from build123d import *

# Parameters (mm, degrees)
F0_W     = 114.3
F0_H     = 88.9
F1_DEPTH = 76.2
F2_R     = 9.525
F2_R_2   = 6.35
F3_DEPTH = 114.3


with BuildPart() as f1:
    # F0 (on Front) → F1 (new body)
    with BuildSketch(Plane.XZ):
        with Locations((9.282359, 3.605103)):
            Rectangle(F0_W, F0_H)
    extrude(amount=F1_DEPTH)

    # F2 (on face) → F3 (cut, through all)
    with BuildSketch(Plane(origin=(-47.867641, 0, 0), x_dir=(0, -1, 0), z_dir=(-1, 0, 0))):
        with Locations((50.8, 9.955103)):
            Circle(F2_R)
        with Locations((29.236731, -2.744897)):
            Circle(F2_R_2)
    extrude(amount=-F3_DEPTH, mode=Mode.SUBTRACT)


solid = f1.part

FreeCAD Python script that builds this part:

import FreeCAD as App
import Part
import Sketcher
from FreeCAD import Vector
Q = App.Units.Quantity

doc = App.newDocument("Part")
body = doc.addObject("PartDesign::Body", "Body")

# Sketch on XZ plane
sketch1 = body.newObject("Sketcher::SketchObject", "Sketch")
sketch1.AttachmentSupport = (doc.getObject("XZ_Plane"), [""])
sketch1.MapMode = "FlatFace"
sketch1.addGeometry([
    Part.LineSegment(Vector(-48, 48, 0), Vector(-48, -41, 0)),
    Part.LineSegment(Vector(-48, -41, 0), Vector(66, -41, 0)),
    Part.LineSegment(Vector(66, -41, 0), Vector(66, 48, 0)),
    Part.LineSegment(Vector(66, 48, 0), Vector(-48, 48, 0)),
], False)
sketch1.addConstraint([
    Sketcher.Constraint("Coincident", 0, 2, 1, 1),
    Sketcher.Constraint("Coincident", 1, 2, 2, 1),
    Sketcher.Constraint("Coincident", 2, 2, 3, 1),
    Sketcher.Constraint("Coincident", 3, 2, 0, 1),
    Sketcher.Constraint("Vertical", 0),
    Sketcher.Constraint("Horizontal", 1),
    Sketcher.Constraint("Vertical", 2),
    Sketcher.Constraint("Horizontal", 3),
    Sketcher.Constraint("DistanceX", 1, 1, 1, 2, Q("4.5 in")),
    Sketcher.Constraint("DistanceY", 0, 2, 0, 1, Q("3.5 in")),
    Sketcher.Constraint("DistanceX", 0, 2, -1, 1, 47.867641),
    Sketcher.Constraint("DistanceY", 0, 2, -1, 1, 40.844897),
])
pad1 = body.newObject("PartDesign::Pad", "Pad")
pad1.Profile = sketch1
pad1.Length = Q("3 in")

# Sketch on YZ plane
sketch2 = body.newObject("Sketcher::SketchObject", "Sketch001")
sketch2.AttachmentSupport = (doc.getObject("YZ_Plane"), [""])
sketch2.MapMode = "FlatFace"
sketch2.AttachmentOffset = App.Placement(Vector(0, 0, -47.867641), App.Rotation())
sketch2.addGeometry([
    Part.Circle(Vector(-51, 10, 0), Vector(0, 0, 1), 10),
    Part.Circle(Vector(-29, -3, 0), Vector(0, 0, 1), 6),
], False)
sketch2.addConstraint([
    Sketcher.Constraint("Diameter", 1, Q("0.5 in")),
    Sketcher.Constraint("Diameter", 0, Q("0.75 in")),
    Sketcher.Constraint("DistanceX", 0, 3, -1, 1, Q("2 in")),
    Sketcher.Constraint("DistanceY", 1, 3, 0, 3, Q("0.5 in")),
    Sketcher.Constraint("DistanceX", 1, 3, -1, 1, 29.236731),
    Sketcher.Constraint("DistanceY", -1, 1, 0, 3, 9.955103),
])
pocket1 = body.newObject("PartDesign::Pocket", "Pocket")
pocket1.Profile = sketch2
pocket1.Type = "ThroughAll"
pocket1.Reversed = True

doc.recompute()
